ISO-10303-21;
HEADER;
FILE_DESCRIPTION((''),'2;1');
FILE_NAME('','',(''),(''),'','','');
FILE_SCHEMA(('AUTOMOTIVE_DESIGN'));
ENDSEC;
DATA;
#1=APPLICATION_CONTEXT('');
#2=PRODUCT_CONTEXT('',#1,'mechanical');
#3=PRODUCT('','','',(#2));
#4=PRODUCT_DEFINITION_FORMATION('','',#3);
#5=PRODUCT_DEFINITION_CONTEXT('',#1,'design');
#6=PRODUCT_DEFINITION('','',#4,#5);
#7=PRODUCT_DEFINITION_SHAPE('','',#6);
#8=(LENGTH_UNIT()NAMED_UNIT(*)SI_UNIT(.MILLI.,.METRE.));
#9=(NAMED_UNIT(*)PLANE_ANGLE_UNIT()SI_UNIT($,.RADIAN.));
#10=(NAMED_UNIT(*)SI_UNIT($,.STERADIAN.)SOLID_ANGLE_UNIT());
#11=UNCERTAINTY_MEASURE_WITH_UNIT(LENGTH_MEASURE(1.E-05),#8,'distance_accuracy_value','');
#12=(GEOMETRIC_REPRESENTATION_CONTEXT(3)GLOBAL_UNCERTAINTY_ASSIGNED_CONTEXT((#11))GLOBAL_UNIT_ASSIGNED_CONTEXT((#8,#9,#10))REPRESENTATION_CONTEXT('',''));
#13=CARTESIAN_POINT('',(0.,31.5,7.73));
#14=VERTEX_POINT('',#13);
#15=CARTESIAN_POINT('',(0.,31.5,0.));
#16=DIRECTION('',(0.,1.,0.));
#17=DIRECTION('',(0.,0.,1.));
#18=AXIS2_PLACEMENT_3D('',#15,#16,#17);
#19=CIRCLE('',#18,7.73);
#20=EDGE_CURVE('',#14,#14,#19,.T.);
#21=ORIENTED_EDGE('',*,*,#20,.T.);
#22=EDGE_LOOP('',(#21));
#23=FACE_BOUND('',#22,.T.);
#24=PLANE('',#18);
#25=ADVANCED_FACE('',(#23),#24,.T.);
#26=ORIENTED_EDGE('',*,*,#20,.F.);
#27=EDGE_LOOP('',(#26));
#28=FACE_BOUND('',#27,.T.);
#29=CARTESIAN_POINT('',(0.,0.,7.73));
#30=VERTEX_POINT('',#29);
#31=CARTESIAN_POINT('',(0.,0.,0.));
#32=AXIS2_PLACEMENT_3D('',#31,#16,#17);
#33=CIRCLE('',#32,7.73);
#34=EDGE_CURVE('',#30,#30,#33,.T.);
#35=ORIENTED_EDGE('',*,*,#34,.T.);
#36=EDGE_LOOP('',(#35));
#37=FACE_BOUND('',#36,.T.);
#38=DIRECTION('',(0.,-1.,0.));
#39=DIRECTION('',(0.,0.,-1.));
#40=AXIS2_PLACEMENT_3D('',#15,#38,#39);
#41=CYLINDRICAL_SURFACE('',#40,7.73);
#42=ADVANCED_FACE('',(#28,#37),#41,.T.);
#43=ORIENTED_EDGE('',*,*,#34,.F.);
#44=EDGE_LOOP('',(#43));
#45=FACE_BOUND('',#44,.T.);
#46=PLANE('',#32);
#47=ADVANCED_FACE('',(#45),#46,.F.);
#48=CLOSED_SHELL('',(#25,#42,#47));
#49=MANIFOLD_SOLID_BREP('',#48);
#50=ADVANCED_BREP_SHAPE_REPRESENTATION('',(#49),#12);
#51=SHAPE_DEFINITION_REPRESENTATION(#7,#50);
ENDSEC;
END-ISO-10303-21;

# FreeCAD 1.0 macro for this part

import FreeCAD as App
import Part
import Sketcher
from FreeCAD import Vector
Q = App.Units.Quantity

doc = App.newDocument("Part")
body = doc.addObject("PartDesign::Body", "Body")

sketch1 = body.newObject("Sketcher::SketchObject", "Sketch")
sketch1.AttachmentSupport = (doc.getObject("XZ_Plane"), [""])
sketch1.MapMode = "FlatFace"
sketch1.addGeometry(Part.Circle(Vector(0, 0, 0), Vector(0, 0, 1), 8), False)
sketch1.addConstraint([
    Sketcher.Constraint("Coincident", 0, 3, -1, 1),
    Sketcher.Constraint("Diameter", 0, Q("15.46 mm")),
])
pad1 = body.newObject("PartDesign::Pad", "Pad")
pad1.Profile = sketch1
pad1.Length = 31.5
pad1.Reversed = True

doc.recompute()
